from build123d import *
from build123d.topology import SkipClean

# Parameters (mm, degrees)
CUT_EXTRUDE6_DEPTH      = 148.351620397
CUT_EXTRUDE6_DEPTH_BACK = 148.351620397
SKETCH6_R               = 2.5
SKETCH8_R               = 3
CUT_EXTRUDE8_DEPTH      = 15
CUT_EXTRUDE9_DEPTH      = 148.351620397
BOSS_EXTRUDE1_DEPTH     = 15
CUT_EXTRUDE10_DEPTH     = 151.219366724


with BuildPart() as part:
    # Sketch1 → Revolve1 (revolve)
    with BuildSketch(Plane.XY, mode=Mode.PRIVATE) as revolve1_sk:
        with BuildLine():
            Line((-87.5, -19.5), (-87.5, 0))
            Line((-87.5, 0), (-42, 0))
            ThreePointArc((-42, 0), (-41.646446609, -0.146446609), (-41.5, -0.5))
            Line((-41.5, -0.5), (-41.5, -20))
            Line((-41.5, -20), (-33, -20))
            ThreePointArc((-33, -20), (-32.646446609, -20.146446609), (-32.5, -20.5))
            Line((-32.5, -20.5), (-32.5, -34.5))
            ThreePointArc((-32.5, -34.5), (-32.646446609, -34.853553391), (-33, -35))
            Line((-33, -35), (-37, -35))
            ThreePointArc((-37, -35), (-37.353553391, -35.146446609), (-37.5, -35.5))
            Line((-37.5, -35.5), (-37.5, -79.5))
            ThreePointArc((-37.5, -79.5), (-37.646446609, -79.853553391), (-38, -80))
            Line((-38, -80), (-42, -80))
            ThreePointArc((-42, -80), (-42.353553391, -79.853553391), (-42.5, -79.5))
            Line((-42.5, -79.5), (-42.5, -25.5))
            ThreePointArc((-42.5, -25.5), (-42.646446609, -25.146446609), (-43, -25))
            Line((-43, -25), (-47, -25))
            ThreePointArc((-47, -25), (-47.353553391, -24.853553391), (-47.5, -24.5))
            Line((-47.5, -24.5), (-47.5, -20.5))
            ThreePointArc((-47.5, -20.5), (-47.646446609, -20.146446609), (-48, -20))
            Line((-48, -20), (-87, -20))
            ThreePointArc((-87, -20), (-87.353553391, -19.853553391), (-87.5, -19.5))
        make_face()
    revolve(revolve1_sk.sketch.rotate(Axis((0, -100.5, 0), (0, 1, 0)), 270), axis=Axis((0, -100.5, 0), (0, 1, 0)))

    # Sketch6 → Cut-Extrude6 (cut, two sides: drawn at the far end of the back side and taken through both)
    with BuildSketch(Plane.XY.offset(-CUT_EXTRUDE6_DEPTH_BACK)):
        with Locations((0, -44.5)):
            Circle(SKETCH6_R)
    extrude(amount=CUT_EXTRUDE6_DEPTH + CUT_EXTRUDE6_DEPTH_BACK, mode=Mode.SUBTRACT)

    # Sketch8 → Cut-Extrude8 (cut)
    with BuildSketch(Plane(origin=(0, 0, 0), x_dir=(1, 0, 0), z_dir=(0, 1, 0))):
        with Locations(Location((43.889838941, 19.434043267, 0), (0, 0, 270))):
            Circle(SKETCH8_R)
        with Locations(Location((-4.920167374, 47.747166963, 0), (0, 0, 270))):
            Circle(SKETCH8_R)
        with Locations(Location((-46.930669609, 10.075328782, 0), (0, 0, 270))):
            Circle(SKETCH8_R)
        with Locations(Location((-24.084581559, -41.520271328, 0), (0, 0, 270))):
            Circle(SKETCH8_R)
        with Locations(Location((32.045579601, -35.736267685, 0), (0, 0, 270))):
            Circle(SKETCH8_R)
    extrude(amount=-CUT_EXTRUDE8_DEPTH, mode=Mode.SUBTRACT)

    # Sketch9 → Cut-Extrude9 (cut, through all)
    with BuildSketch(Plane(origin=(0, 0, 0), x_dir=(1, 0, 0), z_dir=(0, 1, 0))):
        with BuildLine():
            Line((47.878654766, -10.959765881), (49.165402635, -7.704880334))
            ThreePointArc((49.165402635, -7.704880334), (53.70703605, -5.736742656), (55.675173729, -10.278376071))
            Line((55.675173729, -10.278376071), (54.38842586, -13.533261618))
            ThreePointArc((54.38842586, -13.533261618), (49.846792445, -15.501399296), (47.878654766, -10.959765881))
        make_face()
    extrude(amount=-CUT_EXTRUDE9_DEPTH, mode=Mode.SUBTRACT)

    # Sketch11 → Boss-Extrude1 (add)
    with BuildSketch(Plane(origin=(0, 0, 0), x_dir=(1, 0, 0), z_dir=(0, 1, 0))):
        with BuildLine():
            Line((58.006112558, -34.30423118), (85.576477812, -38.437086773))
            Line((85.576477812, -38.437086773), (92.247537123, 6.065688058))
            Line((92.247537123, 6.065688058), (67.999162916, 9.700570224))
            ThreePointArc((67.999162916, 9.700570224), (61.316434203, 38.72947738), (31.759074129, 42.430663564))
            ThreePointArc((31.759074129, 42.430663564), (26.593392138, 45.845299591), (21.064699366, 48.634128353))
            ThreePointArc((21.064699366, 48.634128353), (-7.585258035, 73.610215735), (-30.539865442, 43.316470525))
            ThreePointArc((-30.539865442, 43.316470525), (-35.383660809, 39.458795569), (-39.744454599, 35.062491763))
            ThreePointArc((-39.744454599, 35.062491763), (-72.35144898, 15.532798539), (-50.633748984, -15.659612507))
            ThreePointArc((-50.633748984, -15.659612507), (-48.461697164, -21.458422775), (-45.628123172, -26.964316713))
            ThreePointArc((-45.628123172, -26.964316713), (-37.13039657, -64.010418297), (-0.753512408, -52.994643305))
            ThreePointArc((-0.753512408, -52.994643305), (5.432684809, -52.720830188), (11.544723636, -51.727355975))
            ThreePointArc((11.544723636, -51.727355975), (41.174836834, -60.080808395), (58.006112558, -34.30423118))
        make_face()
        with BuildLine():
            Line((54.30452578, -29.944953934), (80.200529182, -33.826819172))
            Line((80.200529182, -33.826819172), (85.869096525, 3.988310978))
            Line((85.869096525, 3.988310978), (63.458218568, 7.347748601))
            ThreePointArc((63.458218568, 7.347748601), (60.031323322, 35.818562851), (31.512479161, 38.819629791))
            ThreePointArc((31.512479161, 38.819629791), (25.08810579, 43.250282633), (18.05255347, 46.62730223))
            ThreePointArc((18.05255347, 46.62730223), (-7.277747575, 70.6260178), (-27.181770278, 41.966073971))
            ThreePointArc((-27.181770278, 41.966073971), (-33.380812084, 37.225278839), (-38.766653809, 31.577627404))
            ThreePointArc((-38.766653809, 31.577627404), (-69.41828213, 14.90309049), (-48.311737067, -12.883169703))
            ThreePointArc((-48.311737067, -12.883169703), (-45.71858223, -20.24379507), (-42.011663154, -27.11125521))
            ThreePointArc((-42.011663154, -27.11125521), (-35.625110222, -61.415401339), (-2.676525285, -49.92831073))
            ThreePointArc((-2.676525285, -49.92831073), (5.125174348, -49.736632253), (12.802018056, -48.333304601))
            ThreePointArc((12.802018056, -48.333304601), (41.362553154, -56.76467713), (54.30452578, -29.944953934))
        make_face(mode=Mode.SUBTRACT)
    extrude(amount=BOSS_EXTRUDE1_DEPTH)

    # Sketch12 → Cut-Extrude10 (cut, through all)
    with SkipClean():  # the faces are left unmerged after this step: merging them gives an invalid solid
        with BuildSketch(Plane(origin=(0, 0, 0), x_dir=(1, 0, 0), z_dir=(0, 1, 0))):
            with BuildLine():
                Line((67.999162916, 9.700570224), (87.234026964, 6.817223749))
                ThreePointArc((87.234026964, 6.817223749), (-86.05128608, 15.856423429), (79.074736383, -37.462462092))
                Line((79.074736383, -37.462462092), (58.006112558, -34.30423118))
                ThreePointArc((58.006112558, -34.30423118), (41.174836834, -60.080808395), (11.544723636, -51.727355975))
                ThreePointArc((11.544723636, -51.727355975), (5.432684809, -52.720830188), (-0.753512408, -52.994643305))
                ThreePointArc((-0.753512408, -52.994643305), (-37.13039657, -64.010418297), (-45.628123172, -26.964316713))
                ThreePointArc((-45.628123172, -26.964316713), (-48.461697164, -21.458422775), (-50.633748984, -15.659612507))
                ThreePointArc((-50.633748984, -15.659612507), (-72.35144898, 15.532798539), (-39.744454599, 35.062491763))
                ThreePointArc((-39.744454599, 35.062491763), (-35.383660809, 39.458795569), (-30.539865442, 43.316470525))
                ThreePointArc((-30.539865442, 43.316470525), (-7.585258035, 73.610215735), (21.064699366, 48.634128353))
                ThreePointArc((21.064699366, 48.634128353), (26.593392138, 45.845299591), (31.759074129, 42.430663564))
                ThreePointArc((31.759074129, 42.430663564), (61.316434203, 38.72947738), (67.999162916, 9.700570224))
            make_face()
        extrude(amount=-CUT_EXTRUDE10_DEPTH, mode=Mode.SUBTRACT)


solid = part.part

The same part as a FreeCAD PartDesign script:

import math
import FreeCAD as App
import Part
import Sketcher

V = App.Vector
Q = App.Units.Quantity

doc = App.newDocument("Part")
body = doc.addObject("PartDesign::Body", "Body")

sketch1 = body.newObject("Sketcher::SketchObject", "Sketch")
sketch1.AttachmentSupport = (doc.getObject("XY_Plane"), [""])
sketch1.MapMode = "FlatFace"
sketch1.addGeometry([
    Part.LineSegment(V(-87.5, 0, 0), V(-87.5, -19.5, 0)),
    Part.ArcOfCircle(Part.Circle(V(-87, -19.5, 0), V(0, 0, 1), 0.5), math.radians(180), math.radians(270)),
    Part.LineSegment(V(-87, -20, 0), V(-48, -20, 0)),
    Part.ArcOfCircle(Part.Circle(V(-48, -20.5, 0), V(0, 0, 1), 0.5), math.radians(0), math.radians(90)),
    Part.LineSegment(V(-47.5, -20.5, 0), V(-47.5, -24.5, 0)),
    Part.ArcOfCircle(Part.Circle(V(-47, -24.5, 0), V(0, 0, 1), 0.5), math.radians(180), math.radians(270)),
    Part.LineSegment(V(-47, -25, 0), V(-43, -25, 0)),
    Part.ArcOfCircle(Part.Circle(V(-43, -25.5, 0), V(0, 0, 1), 0.5), math.radians(0), math.radians(90)),
    Part.LineSegment(V(-42.5, -25.5, 0), V(-42.5, -79.5, 0)),
    Part.ArcOfCircle(Part.Circle(V(-42, -79.5, 0), V(0, 0, 1), 0.5), math.radians(180), math.radians(270)),
    Part.LineSegment(V(-42, -80, 0), V(-38, -80, 0)),
    Part.ArcOfCircle(Part.Circle(V(-38, -79.5, 0), V(0, 0, 1), 0.5), math.radians(-90), math.radians(0)),
    Part.LineSegment(V(-37.5, -79.5, 0), V(-37.5, -35.5, 0)),
    Part.ArcOfCircle(Part.Circle(V(-37, -35.5, 0), V(0, 0, 1), 0.5), math.radians(90), math.radians(180)),
    Part.LineSegment(V(-37, -35, 0), V(-33, -35, 0)),
    Part.ArcOfCircle(Part.Circle(V(-33, -34.5, 0), V(0, 0, 1), 0.5), math.radians(-90), math.radians(0)),
    Part.LineSegment(V(-32.5, -34.5, 0), V(-32.5, -20.5, 0)),
    Part.ArcOfCircle(Part.Circle(V(-33, -20.5, 0), V(0, 0, 1), 0.5), math.radians(0), math.radians(90)),
    Part.LineSegment(V(-33, -20, 0), V(-41.5, -20, 0)),
    Part.LineSegment(V(-41.5, -20, 0), V(-41.5, -0.5, 0)),
    Part.ArcOfCircle(Part.Circle(V(-42, -0.5, 0), V(0, 0, 1), 0.5), math.radians(0), math.radians(90)),
    Part.LineSegment(V(-42, 0, 0), V(-87.5, 0, 0)),
], False)
sketch1.addConstraint([
    Sketcher.Constraint("Tangent", 0, 2, 1, 1),
    Sketcher.Constraint("Tangent", 1, 2, 2, 1),
    Sketcher.Constraint("Tangent", 2, 2, 3, 2),
    Sketcher.Constraint("Tangent", 3, 1, 4, 1),
    Sketcher.Constraint("Tangent", 4, 2, 5, 1),
    Sketcher.Constraint("Tangent", 5, 2, 6, 1),
    Sketcher.Constraint("Tangent", 6, 2, 7, 2),
    Sketcher.Constraint("Tangent", 7, 1, 8, 1),
    Sketcher.Constraint("Tangent", 8, 2, 9, 1),
    Sketcher.Constraint("Tangent", 9, 2, 10, 1),
    Sketcher.Constraint("Tangent", 10, 2, 11, 1),
    Sketcher.Constraint("Tangent", 11, 2, 12, 1),
    Sketcher.Constraint("Tangent", 12, 2, 13, 2),
    Sketcher.Constraint("Tangent", 13, 1, 14, 1),
    Sketcher.Constraint("Tangent", 14, 2, 15, 1),
    Sketcher.Constraint("Tangent", 15, 2, 16, 1),
    Sketcher.Constraint("Tangent", 16, 2, 17, 1),
    Sketcher.Constraint("Tangent", 17, 2, 18, 1),
    Sketcher.Constraint("Coincident", 18, 2, 19, 1),
    Sketcher.Constraint("Tangent", 19, 2, 20, 1),
    Sketcher.Constraint("Tangent", 20, 2, 21, 1),
    Sketcher.Constraint("Coincident", 21, 2, 0, 1),
    Sketcher.Constraint("Vertical", 0),
    Sketcher.Constraint("Horizontal", 2),
    Sketcher.Constraint("Vertical", 4),
    Sketcher.Constraint("Horizontal", 6),
    Sketcher.Constraint("Vertical", 8),
    Sketcher.Constraint("Horizontal", 10),
    Sketcher.Constraint("Vertical", 12),
    Sketcher.Constraint("Horizontal", 14),
    Sketcher.Constraint("Vertical", 16),
    Sketcher.Constraint("Horizontal", 18),
    Sketcher.Constraint("Vertical", 19),
    Sketcher.Constraint("Horizontal", 21),
    Sketcher.Constraint("Equal", 1, 3),
    Sketcher.Constraint("Equal", 3, 5),
    Sketcher.Constraint("Equal", 5, 7),
    Sketcher.Constraint("Equal", 7, 9),
    Sketcher.Constraint("Equal", 9, 11),
    Sketcher.Constraint("Equal", 11, 13),
    Sketcher.Constraint("Equal", 13, 15),
    Sketcher.Constraint("Equal", 15, 17),
    Sketcher.Constraint("Equal", 17, 20),
    Sketcher.Constraint("PointOnObject", 20, 2, -1),
    Sketcher.Constraint("Horizontal", 3, 3, 17, 3),
    Sketcher.Constraint("Vertical", 9, 3, 20, 3),
    Sketcher.Constraint("Equal", 6, 10),
    Sketcher.Constraint("Equal", 10, 14),
    Sketcher.Constraint("Equal", 14, 4),
    Sketcher.Constraint("Radius", 1, Q("0.5 mm")),
    Sketcher.Constraint("DistanceX", 2, 1, 2, 2, Q("39 mm")),
    Sketcher.Constraint("DistanceX", 6, 1, 6, 2, Q("4 mm")),
    Sketcher.Constraint("DistanceY", 8, 2, 8, 1, Q("54 mm")),
    Sketcher.Constraint("DistanceY", 12, 1, 12, 2, Q("44 mm")),
    Sketcher.Constraint("DistanceY", 0, 2, 0, 1, Q("19.5 mm")),
    Sketcher.Constraint("DistanceX", 1, 3, -1, 1, Q("87 mm")),
])
revolution = body.newObject("PartDesign::Revolution", "Revolution")
revolution.Profile = sketch1
revolution.ReferenceAxis = (sketch1, ["V_Axis"])
revolution.Angle = 360

sketch2 = body.newObject("Sketcher::SketchObject", "Sketch001")
sketch2.AttachmentSupport = (doc.getObject("XY_Plane"), [""])
sketch2.MapMode = "FlatFace"
sketch2.addGeometry(Part.Circle(V(0, -44.5, 0), V(0, 0, 1), 2.5), False)
sketch2.addConstraint([
    Sketcher.Constraint("PointOnObject", 0, 3, -2),
    Sketcher.Constraint("Diameter", 0, Q("5 mm")),
    Sketcher.Constraint("DistanceY", 0, 3, -1, 1, Q("44.5 mm")),
])
pocket1 = body.newObject("PartDesign::Pocket", "Pocket")
pocket1.Profile = sketch2
pocket1.Type = "ThroughAll"
pocket1.Midplane = True

sketch3 = body.newObject("Sketcher::SketchObject", "Sketch002")
sketch3.AttachmentSupport = (doc.getObject("XZ_Plane"), [""])
sketch3.MapMode = "FlatFace"
sketch3.addGeometry([
    Part.Circle(V(43.9, -19.4, 0), V(0, 0, 1), 3),
    Part.Circle(V(-4.9, -47.7, 0), V(0, 0, 1), 3),
    Part.Circle(V(-46.9, -10.1, 0), V(0, 0, 1), 3),
    Part.Circle(V(-24.1, 41.5, 0), V(0, 0, 1), 3),
    Part.Circle(V(32, 35.7, 0), V(0, 0, 1), 3),
], False)
sketch3.addConstraint([
    Sketcher.Constraint("Equal", 0, 1),
    Sketcher.Constraint("Equal", 1, 2),
    Sketcher.Constraint("Equal", 2, 3),
    Sketcher.Constraint("Equal", 3, 4),
    Sketcher.Constraint("Diameter", 0, Q("6 mm")),
    Sketcher.Constraint("DistanceY", 2, 3, 3, 3, Q("51.5956 mm")),
    Sketcher.Constraint("DistanceX", -1, 1, 0, 3, Q("43.889839 mm")),
    Sketcher.Constraint("DistanceX", 2, 3, -1, 1, Q("46.93067 mm")),
    Sketcher.Constraint("DistanceY", 2, 3, -1, 1, Q("10.075329 mm")),
    Sketcher.Constraint("DistanceX", 3, 3, -1, 1, Q("24.084582 mm")),
    Sketcher.Constraint("DistanceX", -1, 1, 4, 3, Q("32.04558 mm")),
    Sketcher.Constraint("DistanceY", 1, 3, 2, 3, Q("37.671838 mm")),
    Sketcher.Constraint("DistanceY", 0, 3, 4, 3, Q("55.170311 mm")),
    Sketcher.Constraint("DistanceY", 0, 3, -1, 1, Q("19.434043 mm")),
    Sketcher.Constraint("DistanceX", 1, 3, -1, 1, Q("4.920167 mm")),
])
pocket2 = body.newObject("PartDesign::Pocket", "Pocket001")
pocket2.Profile = sketch3
pocket2.Length = 15
pocket2.Reversed = True

sketch4 = body.newObject("Sketcher::SketchObject", "Sketch003")
sketch4.AttachmentSupport = (doc.getObject("XZ_Plane"), [""])
sketch4.MapMode = "FlatFace"
sketch4.addGeometry([
    Part.LineSegment(V(49.2, 7.7, 0), V(47.9, 11, 0)),
    Part.ArcOfCircle(Part.Circle(V(51.1, 12.2, 0), V(0, 0, 1), 3.5), math.radians(22), math.radians(202)),
    Part.LineSegment(V(54.4, 13.5, 0), V(55.7, 10.3, 0)),
    Part.ArcOfCircle(Part.Circle(V(52.4, 9, 0), V(0, 0, 1), 3.5), math.radians(-158), math.radians(22)),
], False)
sketch4.addConstraint([
    Sketcher.Constraint("Tangent", 0, 2, 1, 2),
    Sketcher.Constraint("Tangent", 1, 1, 2, 1),
    Sketcher.Constraint("Tangent", 2, 2, 3, 2),
    Sketcher.Constraint("Tangent", 3, 1, 0, 1),
    Sketcher.Constraint("Equal", 1, 3),
    Sketcher.Constraint("Radius", 1, Q("3.5 mm")),
    Sketcher.Constraint("Distance", 0, Q("3.5 mm")),
    Sketcher.Constraint("DistanceX", -1, 1, 1, 3, Q("51.13354 mm")),
    Sketcher.Constraint("DistanceX", -1, 1, 3, 3, Q("52.420288 mm")),
    Sketcher.Constraint("DistanceY", -1, 1, 3, 3, Q("8.991628 mm")),
])
pocket3 = body.newObject("PartDesign::Pocket", "Pocket002")
pocket3.Profile = sketch4
pocket3.Type = "ThroughAll"
pocket3.Reversed = True

sketch5 = body.newObject("Sketcher::SketchObject", "Sketch004")
sketch5.AttachmentSupport = (doc.getObject("XZ_Plane"), [""])
sketch5.MapMode = "FlatFace"
sketch5.addGeometry([
    Part.LineSegment(V(58.006113, 34.304231, 0), V(85.576478, 38.437087, 0)),
    Part.LineSegment(V(85.576478, 38.437087, 0), V(92.247537, -6.065688, 0)),
    Part.LineSegment(V(92.247537, -6.065688, 0), V(67.999163, -9.70057, 0)),
    Part.ArcOfCircle(Part.Circle(V(43.889839, -19.434043, 0), V(0, 0, 1), 26), math.radians(-117.81174), math.radians(21.985031)),
    Part.ArcOfCircle(Part.Circle(V(0, 0, 0), V(0, 0, 1), 53), math.radians(-66.581315), math.radians(-53.185386)),
    Part.ArcOfCircle(Part.Circle(V(-4.920167, -47.747167, 0), V(0, 0, 1), 26), math.radians(170.18826), math.radians(358.045038)),
    Part.ArcOfCircle(Part.Circle(V(0, 0, 0), V(0, 0, 1), 53), math.radians(-138.581315), math.radians(-125.185386)),
    Part.ArcOfCircle(Part.Circle(V(-46.93067, -10.075329, 0), V(0, 0, 1), 26), math.radians(98.18826), math.radians(286.045038)),
    Part.ArcOfCircle(Part.Circle(V(0, 0, 0), V(0, 0, 1), 53), math.radians(149.418685), math.radians(162.814614)),
    Part.ArcOfCircle(Part.Circle(V(-24.084582, 41.520271, 0), V(0, 0, 1), 26), math.radians(26.18826), math.radians(214.045038)),
    Part.ArcOfCircle(Part.Circle(V(0, 0, 0), V(0, 0, 1), 53), math.radians(77.418685), math.radians(90.814614)),
    Part.ArcOfCircle(Part.Circle(V(32.04558, 35.736268, 0), V(0, 0, 1), 26), math.radians(-3.157353), math.radians(142.045038)),
    Part.LineSegment(V(80.200529, 33.826819, 0), V(54.304526, 29.944954, 0)),
    Part.ArcOfCircle(Part.Circle(V(32.04558, 35.736268, 0), V(0, 0, 1), 23), math.radians(-14.583831), math.radians(146.790822)),
    Part.ArcOfCircle(Part.Circle(V(0, 0, 0), V(0, 0, 1), 50), math.radians(75.16476), math.radians(93.068539)),
    Part.ArcOfCircle(Part.Circle(V(-24.084582, 41.520271, 0), V(0, 0, 1), 23), math.radians(21.442477), math.radians(218.790822)),
    Part.ArcOfCircle(Part.Circle(V(0, 0, 0), V(0, 0, 1), 50), math.radians(147.16476), math.radians(165.068539)),
    Part.ArcOfCircle(Part.Circle(V(-46.93067, -10.075329, 0), V(0, 0, 1), 23), math.radians(93.442477), math.radians(290.790822)),
    Part.ArcOfCircle(Part.Circle(V(0, 0, 0), V(0, 0, 1), 50), math.radians(-140.83524), math.radians(-122.931461)),
    Part.ArcOfCircle(Part.Circle(V(-4.920167, -47.747167, 0), V(0, 0, 1), 23), math.radians(165.442477), math.radians(362.790822)),
    Part.ArcOfCircle(Part.Circle(V(0, 0, 0), V(0, 0, 1), 50), math.radians(-68.83524), math.radians(-50.931461)),
    Part.ArcOfCircle(Part.Circle(V(43.889839, -19.434043, 0), V(0, 0, 1), 23), math.radians(-122.557523), math.radians(31.701308)),
    Part.LineSegment(V(63.458219, -7.347749, 0), V(85.869097, -3.988311, 0)),
    Part.LineSegment(V(85.869097, -3.988311, 0), V(80.200529, 33.826819, 0)),
], False)
sketch5.addConstraint([
    Sketcher.Constraint("Coincident", 0, 2, 1, 1),
    Sketcher.Constraint("Coincident", 1, 2, 2, 1),
    Sketcher.Constraint("Coincident", 2, 2, 3, 2),
    Sketcher.Constraint("Coincident", 3, 1, 4, 2),
    Sketcher.Constraint("Coincident", 4, 1, 5, 2),
    Sketcher.Constraint("Coincident", 5, 1, 6, 2),
    Sketcher.Constraint("Coincident", 6, 1, 7, 2),
    Sketcher.Constraint("Coincident", 7, 1, 8, 2),
    Sketcher.Constraint("Coincident", 8, 1, 9, 2),
    Sketcher.Constraint("Coincident", 9, 1, 10, 2),
    Sketcher.Constraint("Coincident", 10, 1, 11, 2),
    Sketcher.Constraint("Coincident", 11, 1, 0, 1),
    Sketcher.Constraint("Coincident", 12, 2, 13, 1),
    Sketcher.Constraint("Coincident", 13, 2, 14, 1),
    Sketcher.Constraint("Coincident", 14, 2, 15, 1),
    Sketcher.Constraint("Coincident", 15, 2, 16, 1),
    Sketcher.Constraint("Coincident", 16, 2, 17, 1),
    Sketcher.Constraint("Coincident", 17, 2, 18, 1),
    Sketcher.Constraint("Coincident", 18, 2, 19, 1),
    Sketcher.Constraint("Coincident", 19, 2, 20, 1),
    Sketcher.Constraint("Coincident", 20, 2, 21, 1),
    Sketcher.Constraint("Coincident", 21, 2, 22, 1),
    Sketcher.Constraint("Coincident", 22, 2, 23, 1),
    Sketcher.Constraint("Coincident", 23, 2, 12, 1),
    Sketcher.Constraint("Coincident", 4, 3, -1, 1),
    Sketcher.Constraint("Coincident", 6, 3, -1, 1),
    Sketcher.Constraint("Coincident", 8, 3, -1, 1),
    Sketcher.Constraint("Coincident", 10, 3, -1, 1),
    Sketcher.Constraint("Coincident", 14, 3, -1, 1),
    Sketcher.Constraint("Coincident", 16, 3, -1, 1),
    Sketcher.Constraint("Coincident", 18, 3, -1, 1),
    Sketcher.Constraint("Coincident", 20, 3, -1, 1),
    Sketcher.Constraint("Coincident", 13, 3, 11, 3),
    Sketcher.Constraint("Coincident", 15, 3, 9, 3),
    Sketcher.Constraint("Coincident", 17, 3, 7, 3),
    Sketcher.Constraint("Coincident", 19, 3, 5, 3),
    Sketcher.Constraint("Coincident", 21, 3, 3, 3),
    Sketcher.Constraint("Radius", 3, Q("26 mm")),
    Sketcher.Constraint("Radius", 4, Q("53 mm")),
    Sketcher.Constraint("Radius", 5, Q("26 mm")),
    Sketcher.Constraint("Radius", 6, Q("53 mm")),
    Sketcher.Constraint("Radius", 7, Q("26 mm")),
    Sketcher.Constraint("Radius", 8, Q("53 mm")),
    Sketcher.Constraint("Radius", 9, Q("26 mm")),
    Sketcher.Constraint("Radius", 10, Q("53 mm")),
    Sketcher.Constraint("Radius", 11, Q("26 mm")),
    Sketcher.Constraint("Radius", 13, Q("23 mm")),
    Sketcher.Constraint("Radius", 14, Q("50 mm")),
    Sketcher.Constraint("Radius", 15, Q("23 mm")),
    Sketcher.Constraint("Radius", 16, Q("50 mm")),
    Sketcher.Constraint("Radius", 17, Q("23 mm")),
    Sketcher.Constraint("Radius", 18, Q("50 mm")),
    Sketcher.Constraint("Radius", 19, Q("23 mm")),
    Sketcher.Constraint("Radius", 20, Q("50 mm")),
    Sketcher.Constraint("Radius", 21, Q("23 mm")),
    Sketcher.Constraint("Distance", 1, Q("45 mm")),
    Sketcher.Constraint("Distance", 2, Q("24.519299 mm")),
    Sketcher.Constraint("DistanceX", -1, 1, 4, 1, Q("21.064699 mm")),
    Sketcher.Constraint("DistanceY", 7, 3, 9, 3, Q("51.5956 mm")),
    Sketcher.Constraint("DistanceX", 11, 3, 0, 2, Q("53.530898 mm")),
    Sketcher.Constraint("DistanceX", 3, 3, 1, 2, Q("48.357698 mm")),
    Sketcher.Constraint("DistanceX", 5, 1, 5, 3, Q("25.619698 mm")),
    Sketcher.Constraint("DistanceY", 2, 2, 11, 1, Q("44.004801 mm")),
    Sketcher.Constraint("DistanceX", 9, 3, 13, 2, Q("36.8866 mm")),
    Sketcher.Constraint("DistanceY", 17, 2, 7, 3, Q("21.502299 mm")),
    Sketcher.Constraint("DistanceY", 4, 1, 20, 2, Q("9.814499 mm")),
    Sketcher.Constraint("DistanceX", -1, 1, 3, 3, Q("43.889839 mm")),
    Sketcher.Constraint("DistanceX", 7, 3, -1, 1, Q("46.93067 mm")),
    Sketcher.Constraint("DistanceX", 9, 3, -1, 1, Q("24.084582 mm")),
    Sketcher.Constraint("DistanceX", -1, 1, 11, 3, Q("32.04558 mm")),
    Sketcher.Constraint("DistanceY", 1, 2, -1, 1, Q("6.065688 mm")),
    Sketcher.Constraint("DistanceX", -1, 1, 21, 2, Q("63.458219 mm")),
    Sketcher.Constraint("DistanceY", 22, 2, -1, 1, Q("3.988311 mm")),
    Sketcher.Constraint("DistanceX", -1, 1, 23, 2, Q("80.200529 mm")),
    Sketcher.Constraint("DistanceY", -1, 1, 23, 2, Q("33.826819 mm")),
    Sketcher.Constraint("DistanceX", 22, 2, 1, 2, Q("6.378441 mm")),
    Sketcher.Constraint("Distance", 12, Q("26.185337 mm")),
])
pad1 = body.newObject("PartDesign::Pad", "Pad")
pad1.Profile = sketch5
pad1.Length = 15
pad1.Reversed = True

sketch6 = body.newObject("Sketcher::SketchObject", "Sketch005")
sketch6.AttachmentSupport = (doc.getObject("XZ_Plane"), [""])
sketch6.MapMode = "FlatFace"
sketch6.addGeometry([
    Part.LineSegment(V(68, -10, 0), V(87, -7, 0)),
    Part.ArcOfCircle(Part.Circle(V(0, 0, 0), V(0, 0, 1), 88), math.radians(25), math.radians(356)),
    Part.LineSegment(V(79, 37, 0), V(58, 34, 0)),
    Part.ArcOfCircle(Part.Circle(V(32, 36, 0), V(0, 0, 1), 26), math.radians(-3), math.radians(142)),
    Part.ArcOfCircle(Part.Circle(V(0, 0, 0), V(0, 0, 1), 53), math.radians(77.42), math.radians(90.81)),
    Part.ArcOfCircle(Part.Circle(V(-24, 42, 0), V(0, 0, 1), 26), math.radians(26), math.radians(214)),
    Part.ArcOfCircle(Part.Circle(V(0, 0, 0), V(0, 0, 1), 53), math.radians(149.42), math.radians(162.81)),
    Part.ArcOfCircle(Part.Circle(V(-47, -10, 0), V(0, 0, 1), 26), math.radians(98), math.radians(286)),
    Part.ArcOfCircle(Part.Circle(V(0, 0, 0), V(0, 0, 1), 53), math.radians(-138.58), math.radians(-125.19)),
    Part.ArcOfCircle(Part.Circle(V(-5, -48, 0), V(0, 0, 1), 26), math.radians(170), math.radians(358)),
    Part.ArcOfCircle(Part.Circle(V(0, 0, 0), V(0, 0, 1), 53), math.radians(-66.58), math.radians(-53.19)),
    Part.ArcOfCircle(Part.Circle(V(44, -19, 0), V(0, 0, 1), 26), math.radians(-118), math.radians(22)),
], False)
sketch6.addConstraint([
    Sketcher.Constraint("Coincident", 0, 2, 1, 2),
    Sketcher.Constraint("Coincident", 1, 1, 2, 1),
    Sketcher.Constraint("Coincident", 2, 2, 3, 1),
    Sketcher.Constraint("Coincident", 3, 2, 4, 1),
    Sketcher.Constraint("Coincident", 4, 2, 5, 1),
    Sketcher.Constraint("Coincident", 5, 2, 6, 1),
    Sketcher.Constraint("Coincident", 6, 2, 7, 1),
    Sketcher.Constraint("Coincident", 7, 2, 8, 1),
    Sketcher.Constraint("Coincident", 8, 2, 9, 1),
    Sketcher.Constraint("Coincident", 9, 2, 10, 1),
    Sketcher.Constraint("Coincident", 10, 2, 11, 1),
    Sketcher.Constraint("Coincident", 11, 2, 0, 1),
    Sketcher.Constraint("Coincident", 1, 3, -1, 1),
    Sketcher.Constraint("Coincident", 4, 3, -1, 1),
    Sketcher.Constraint("Coincident", 6, 3, -1, 1),
    Sketcher.Constraint("Coincident", 8, 3, -1, 1),
    Sketcher.Constraint("Coincident", 10, 3, -1, 1),
    Sketcher.Constraint("Equal", 3, 5),
    Sketcher.Constraint("Equal", 4, 6),
    Sketcher.Constraint("Equal", 5, 7),
    Sketcher.Constraint("Equal", 6, 8),
    Sketcher.Constraint("Equal", 7, 9),
    Sketcher.Constraint("Equal", 8, 10),
    Sketcher.Constraint("Equal", 9, 11),
    Sketcher.Constraint("Parallel", 0, 2),
    Sketcher.Constraint("Radius", 3, Q("26 mm")),
    Sketcher.Constraint("Radius", 4, Q("53 mm")),
    Sketcher.Constraint("Radius", 1, Q("87.5 mm")),
    Sketcher.Constraint("DistanceX", -1, 1, 9, 2, Q("21.064699 mm")),
    Sketcher.Constraint("DistanceY", 7, 3, 5, 3, Q("51.5956 mm")),
    Sketcher.Constraint("DistanceX", 8, 2, 9, 3, Q("25.619698 mm")),
    Sketcher.Constraint("DistanceY", 11, 2, 2, 2, Q("44.004801 mm")),
    Sketcher.Constraint("Distance", 2, Q("21.304022 mm")),
    Sketcher.Constraint("DistanceX", -1, 1, 3, 3, Q("32.04558 mm")),
    Sketcher.Constraint("DistanceX", 5, 3, -1, 1, Q("24.084582 mm")),
    Sketcher.Constraint("DistanceY", -1, 1, 5, 3, Q("41.520271 mm")),
    Sketcher.Constraint("DistanceX", 7, 3, -1, 1, Q("46.93067 mm")),
    Sketcher.Constraint("DistanceX", -1, 1, 11, 3, Q("43.889839 mm")),
    Sketcher.Constraint("DistanceY", -1, 1, 2, 2, Q("34.304231 mm")),
    Sketcher.Constraint("DistanceX", 11, 3, 0, 2, Q("43.344188 mm")),
    Sketcher.Constraint("DistanceY", 11, 3, 0, 2, Q("12.61682 mm")),
])
pocket4 = body.newObject("PartDesign::Pocket", "Pocket003")
pocket4.Profile = sketch6
pocket4.Type = "ThroughAll"
pocket4.Reversed = True

doc.recompute()
